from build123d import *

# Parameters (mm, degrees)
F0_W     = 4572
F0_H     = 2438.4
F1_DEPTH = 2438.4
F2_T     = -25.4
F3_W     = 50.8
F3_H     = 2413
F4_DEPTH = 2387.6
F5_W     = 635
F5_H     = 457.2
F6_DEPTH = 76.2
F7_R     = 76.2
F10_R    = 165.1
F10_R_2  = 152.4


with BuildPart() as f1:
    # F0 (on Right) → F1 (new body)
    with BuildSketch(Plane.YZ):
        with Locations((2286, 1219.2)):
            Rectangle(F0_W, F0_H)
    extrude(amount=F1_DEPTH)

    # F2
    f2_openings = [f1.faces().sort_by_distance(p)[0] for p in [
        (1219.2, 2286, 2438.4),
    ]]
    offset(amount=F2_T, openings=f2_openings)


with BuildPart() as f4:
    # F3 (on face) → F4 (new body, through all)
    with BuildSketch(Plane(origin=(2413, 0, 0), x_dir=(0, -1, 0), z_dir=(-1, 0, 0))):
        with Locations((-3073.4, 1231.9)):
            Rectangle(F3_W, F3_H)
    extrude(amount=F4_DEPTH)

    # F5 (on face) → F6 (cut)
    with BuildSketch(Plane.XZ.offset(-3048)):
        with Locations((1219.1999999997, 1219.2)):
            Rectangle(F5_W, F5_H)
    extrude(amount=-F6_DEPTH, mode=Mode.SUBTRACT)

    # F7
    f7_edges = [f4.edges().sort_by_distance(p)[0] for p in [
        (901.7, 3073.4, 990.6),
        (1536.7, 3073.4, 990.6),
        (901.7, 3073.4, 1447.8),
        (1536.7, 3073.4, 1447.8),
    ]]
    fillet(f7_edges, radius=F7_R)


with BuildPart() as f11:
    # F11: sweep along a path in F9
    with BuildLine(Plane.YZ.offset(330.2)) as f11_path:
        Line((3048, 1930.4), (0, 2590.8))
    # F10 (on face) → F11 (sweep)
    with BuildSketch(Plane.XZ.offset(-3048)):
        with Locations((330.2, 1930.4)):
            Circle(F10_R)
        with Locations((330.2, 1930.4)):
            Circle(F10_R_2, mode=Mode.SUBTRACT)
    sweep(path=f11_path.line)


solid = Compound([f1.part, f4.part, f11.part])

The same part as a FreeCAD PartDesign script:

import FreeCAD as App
import Part
import Sketcher
Q = App.Units.Quantity


def edges_at(feature, points):
    """Names of the edges that pass closest to the given points."""
    edges = feature.Shape.Edges
    near = lambda p: min(range(len(edges)), key=lambda i: edges[i].distToShape(Part.Vertex(*p))[0])
    return sorted({f"Edge{near(p) + 1}" for p in points})


def faces_at(feature, points):
    """Names of the faces that lie closest to the given points."""
    faces = feature.Shape.Faces
    near = lambda p: min(range(len(faces)), key=lambda i: faces[i].distToShape(Part.Vertex(*p))[0])
    return sorted({f"Face{near(p) + 1}" for p in points})


def add_polygon(sketch, points):
    """Adds a closed chain of lines whose ends are joined by coincident constraints."""
    first, n = sketch.GeometryCount, len(points)
    for a, b in zip(points, points[1:] + points[:1]):
        sketch.addGeometry(Part.LineSegment(App.Vector(*a, 0), App.Vector(*b, 0)), False)
    for i in range(n):
        sketch.addConstraint(Sketcher.Constraint("Coincident", first + i, 2, first + (i + 1) % n, 1))

doc = App.newDocument("Part")
params = doc.addObject("Spreadsheet::Sheet", "Params")
for row, (alias, value) in enumerate([
    ("sketch1_width", "180 in"),
    ("sketch1_height", "96 in"),
    ("pad1_length", "96 in"),
    ("thickness_wall", "1 in"),
    ("sketch2_width", "2 in"),
    ("sketch2_height", "95 in"),
    ("pad2_length", "94 in"),
    ("sketch3_width", "25 in"),
    ("sketch3_height", "18 in"),
    ("pocket1_length", "3 in"),
    ("fillet_radius", "3 in"),
    ("sketch4_diameter", "13 in"),
    ("sketch4_diameter2", "12 in"),
], start=1):
    params.set(f"A{row}", alias)
    params.set(f"B{row}", "=" + value)
    params.setAlias(f"B{row}", alias)

body = doc.addObject("PartDesign::Body", "Body")

# Sketch on YZ plane
sketch1 = body.newObject("Sketcher::SketchObject", "Sketch")
sketch1.AttachmentSupport = (doc.getObject("YZ_Plane"), [""])
sketch1.MapMode = "FlatFace"
add_polygon(sketch1, [(0, 2438), (0, 0), (4572, 0), (4572, 2438)])  # lines 0-3
sketch1.addConstraint(Sketcher.Constraint("Vertical", 0))
sketch1.addConstraint(Sketcher.Constraint("Horizontal", 1))
sketch1.addConstraint(Sketcher.Constraint("Vertical", 2))
sketch1.addConstraint(Sketcher.Constraint("Horizontal", 3))
sketch1.addConstraint(Sketcher.Constraint("Coincident", 0, 2, -1, 1))
sketch1.addConstraint(Sketcher.Constraint("DistanceX", 1, 1, 1, 2, Q("180 in")))
sketch1.addConstraint(Sketcher.Constraint("DistanceY", 0, 2, 0, 1, Q("96 in")))
sketch1.setExpression("Constraints[9]", "Params.sketch1_width")
sketch1.setExpression("Constraints[10]", "Params.sketch1_height")
pad1 = body.newObject("PartDesign::Pad", "Pad")
pad1.Profile = sketch1
pad1.setExpression("Length", "Params.pad1_length")
doc.recompute()

thickness = body.newObject("PartDesign::Thickness", "Thickness")
thickness.Base = (pad1, faces_at(pad1, [(1219.2, 2286, 2438.4)]))
thickness.setExpression("Value", "Params.thickness_wall")
thickness.Reversed = True
thickness.Join = "Arc"
body2 = doc.addObject("PartDesign::Body", "Body001")

# Sketch on YZ plane
sketch2 = body2.newObject("Sketcher::SketchObject", "Sketch001")
sketch2.AttachmentSupport = (doc.getObject("YZ_Plane001"), [""])
sketch2.MapMode = "FlatFace"
sketch2.AttachmentOffset = App.Placement(App.Vector(0, 0, 95 * 25.4), App.Rotation())
add_polygon(sketch2, [(3099, 2438), (3099, 25), (3048, 25), (3048, 2438)])  # lines 0-3
sketch2.addConstraint(Sketcher.Constraint("Vertical", 0))
sketch2.addConstraint(Sketcher.Constraint("Horizontal", 1))
sketch2.addConstraint(Sketcher.Constraint("Vertical", 2))
sketch2.addConstraint(Sketcher.Constraint("Horizontal", 3))
sketch2.addConstraint(Sketcher.Constraint("DistanceX", 1, 2, 1, 1, Q("2 in")))
sketch2.addConstraint(Sketcher.Constraint("DistanceY", 0, 2, 0, 1, Q("95 in")))
sketch2.addConstraint(Sketcher.Constraint("DistanceX", -1, 1, 0, 2, Q("122 in")))
sketch2.addConstraint(Sketcher.Constraint("DistanceY", -1, 1, 0, 2, Q("1 in")))
sketch2.setExpression("Constraints[8]", "Params.sketch2_width")
sketch2.setExpression("Constraints[9]", "Params.sketch2_height")
pad2 = body2.newObject("PartDesign::Pad", "Pad001")
pad2.Profile = sketch2
pad2.setExpression("Length", "Params.pad2_length")
pad2.Reversed = True

# Sketch on XZ plane
sketch3 = body2.newObject("Sketcher::SketchObject", "Sketch002")
sketch3.AttachmentSupport = (doc.getObject("XZ_Plane001"), [""])
sketch3.MapMode = "FlatFace"
sketch3.AttachmentOffset = App.Placement(App.Vector(0, 0, -120 * 25.4), App.Rotation())
add_polygon(sketch3, [(902, 1448), (902, 991), (1537, 991), (1537, 1448)])  # lines 0-3
sketch3.addConstraint(Sketcher.Constraint("Vertical", 0))
sketch3.addConstraint(Sketcher.Constraint("Horizontal", 1))
sketch3.addConstraint(Sketcher.Constraint("Vertical", 2))
sketch3.addConstraint(Sketcher.Constraint("Horizontal", 3))
sketch3.addConstraint(Sketcher.Constraint("DistanceX", 1, 1, 1, 2, Q("25 in")))
sketch3.addConstraint(Sketcher.Constraint("DistanceY", 0, 2, 0, 1, Q("18 in")))
sketch3.addConstraint(Sketcher.Constraint("DistanceY", -1, 1, 0, 2, Q("39 in")))
sketch3.addConstraint(Sketcher.Constraint("DistanceX", -1, 1, 0, 2, Q("35.5 in")))
sketch3.setExpression("Constraints[8]", "Params.sketch3_width")
sketch3.setExpression("Constraints[9]", "Params.sketch3_height")
pocket1 = body2.newObject("PartDesign::Pocket", "Pocket")
pocket1.Profile = sketch3
pocket1.setExpression("Length", "Params.pocket1_length")
doc.recompute()

fillet = body2.newObject("PartDesign::Fillet", "Fillet")
fillet.Base = (pocket1, edges_at(pocket1, [
    (901.7, 3073.4, 990.6),
    (1536.7, 3073.4, 990.6),
    (901.7, 3073.4, 1447.8),
    (1536.7, 3073.4, 1447.8),
]))
fillet.setExpression("Radius", "Params.fillet_radius")
body3 = doc.addObject("PartDesign::Body", "Body002")

# Sketch on XZ plane
sketch4 = body3.newObject("Sketcher::SketchObject", "Sketch003")
sketch4.AttachmentSupport = (doc.getObject("XZ_Plane002"), [""])
sketch4.MapMode = "FlatFace"
sketch4.AttachmentOffset = App.Placement(App.Vector(0, 0, -120 * 25.4), App.Rotation())
sketch4.addGeometry(Part.Circle(App.Vector(330, 1930, 0), App.Vector(0, 0, 1), 165), False)
sketch4.addGeometry(Part.Circle(App.Vector(330, 1930, 0), App.Vector(0, 0, 1), 152), False)
sketch4.addConstraint(Sketcher.Constraint("Coincident", 1, 3, 0, 3))
sketch4.addConstraint(Sketcher.Constraint("Diameter", 0, Q("13 in")))
sketch4.addConstraint(Sketcher.Constraint("Diameter", 1, Q("12 in")))
sketch4.addConstraint(Sketcher.Constraint("DistanceX", -1, 1, 0, 3, Q("13 in")))
sketch4.addConstraint(Sketcher.Constraint("DistanceY", -1, 1, 0, 3, Q("76 in")))
sketch4.setExpression("Constraints[1]", "Params.sketch4_diameter")
sketch4.setExpression("Constraints[2]", "Params.sketch4_diameter2")

# Sketch on an angled plane
sketch5 = body3.newObject("Sketcher::SketchObject", "Sketch004")
sketch5.Placement = App.Placement(App.Vector(0, 536.169806, 2474.629875), App.Rotation(App.Vector(0, -0.97732314, 0.211753347), App.Vector(1, 0, 0), App.Vector(0, 0.211753347, 0.97732314), "ZXY"))
sketch5.addGeometry(Part.LineSegment(App.Vector(-2570, 330, 0), App.Vector(549, 330, 0)), False)
sketch5.addConstraint(Sketcher.Constraint("Horizontal", 0))
sketch5.addConstraint(Sketcher.Constraint("DistanceY", -1, 1, 0, 1, Q("13 in")))
sketch5.addConstraint(Sketcher.Constraint("DistanceX", 0, 1, 0, 2, 3118.722841))
sketch5.addConstraint(Sketcher.Constraint("DistanceX", 0, 1, -1, 1, 2570.11227))
doc.recompute()

additivepipe = body3.newObject("PartDesign::AdditivePipe", "AdditivePipe")
additivepipe.Profile = sketch4
additivepipe.Spine = (sketch5, ["Edge1"])

doc.recompute()
